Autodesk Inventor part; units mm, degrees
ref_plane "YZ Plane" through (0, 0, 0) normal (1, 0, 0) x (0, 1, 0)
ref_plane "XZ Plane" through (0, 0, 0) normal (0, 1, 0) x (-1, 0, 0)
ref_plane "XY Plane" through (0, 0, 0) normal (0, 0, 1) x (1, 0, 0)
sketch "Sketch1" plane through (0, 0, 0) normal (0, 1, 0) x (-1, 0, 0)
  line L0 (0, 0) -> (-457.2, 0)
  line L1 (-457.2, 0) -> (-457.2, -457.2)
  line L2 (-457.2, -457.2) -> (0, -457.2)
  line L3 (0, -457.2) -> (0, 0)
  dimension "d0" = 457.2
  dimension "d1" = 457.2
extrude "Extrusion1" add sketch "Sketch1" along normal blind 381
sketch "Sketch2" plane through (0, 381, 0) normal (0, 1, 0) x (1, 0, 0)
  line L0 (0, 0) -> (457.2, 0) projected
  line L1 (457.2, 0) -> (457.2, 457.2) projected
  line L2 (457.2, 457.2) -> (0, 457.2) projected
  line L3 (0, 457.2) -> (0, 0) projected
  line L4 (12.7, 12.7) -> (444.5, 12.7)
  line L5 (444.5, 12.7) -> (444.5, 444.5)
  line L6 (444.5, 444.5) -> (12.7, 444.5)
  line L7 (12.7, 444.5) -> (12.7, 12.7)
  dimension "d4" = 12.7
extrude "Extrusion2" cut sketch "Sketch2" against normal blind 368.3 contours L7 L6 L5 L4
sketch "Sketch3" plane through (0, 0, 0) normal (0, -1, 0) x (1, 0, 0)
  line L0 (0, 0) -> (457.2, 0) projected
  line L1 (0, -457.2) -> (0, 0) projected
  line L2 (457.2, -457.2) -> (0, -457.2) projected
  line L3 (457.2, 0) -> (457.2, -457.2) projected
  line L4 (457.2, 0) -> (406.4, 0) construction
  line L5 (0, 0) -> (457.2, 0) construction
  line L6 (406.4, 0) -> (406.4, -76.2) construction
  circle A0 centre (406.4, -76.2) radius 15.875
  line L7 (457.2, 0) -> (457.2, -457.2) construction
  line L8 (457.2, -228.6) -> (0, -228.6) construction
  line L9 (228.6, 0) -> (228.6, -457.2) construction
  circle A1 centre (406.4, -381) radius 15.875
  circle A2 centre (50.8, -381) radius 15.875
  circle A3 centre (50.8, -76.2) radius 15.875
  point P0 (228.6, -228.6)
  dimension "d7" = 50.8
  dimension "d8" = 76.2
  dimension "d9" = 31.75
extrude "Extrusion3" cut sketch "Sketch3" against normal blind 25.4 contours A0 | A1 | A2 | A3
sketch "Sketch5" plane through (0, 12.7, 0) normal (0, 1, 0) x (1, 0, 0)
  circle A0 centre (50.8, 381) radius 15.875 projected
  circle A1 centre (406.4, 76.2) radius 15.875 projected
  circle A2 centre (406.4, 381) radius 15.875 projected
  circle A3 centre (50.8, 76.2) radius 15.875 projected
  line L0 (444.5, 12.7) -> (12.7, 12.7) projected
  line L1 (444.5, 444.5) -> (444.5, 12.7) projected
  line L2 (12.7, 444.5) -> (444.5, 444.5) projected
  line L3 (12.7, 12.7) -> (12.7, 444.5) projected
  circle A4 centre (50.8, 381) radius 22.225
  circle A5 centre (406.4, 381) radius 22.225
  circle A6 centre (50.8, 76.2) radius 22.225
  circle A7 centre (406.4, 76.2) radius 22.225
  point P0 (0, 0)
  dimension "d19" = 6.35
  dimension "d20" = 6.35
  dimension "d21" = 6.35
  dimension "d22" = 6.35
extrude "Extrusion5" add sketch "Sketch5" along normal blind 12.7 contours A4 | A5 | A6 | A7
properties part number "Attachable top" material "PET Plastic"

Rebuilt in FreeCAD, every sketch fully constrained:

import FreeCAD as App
import Part
import Sketcher

V = App.Vector
Q = App.Units.Quantity

doc = App.newDocument("Part")
params = doc.addObject("Spreadsheet::Sheet", "Params")
for row, (alias, value) in enumerate([
    ("sketch1_width", "18 in"),
    ("pad1_length", "15 in"),
    ("sketch2_width", "17 in"),
    ("pocket1_length", "14.5 in"),
    ("sketch3_diameter", "1.25 in"),
    ("pocket2_length", "1 in"),
    ("sketch4_diameter", "1.75 in"),
    ("sketch4_diameter2", "1.25 in"),
    ("pad2_length", "0.5 in"),
], start=1):
    params.set(f"A{row}", alias)
    params.set(f"B{row}", "=" + value)
    params.setAlias(f"B{row}", alias)

body = doc.addObject("PartDesign::Body", "Body")

sketch1 = doc.addObject("Sketcher::SketchObject", "Sketch")
body.addObject(sketch1)
sketch1.AttachmentSupport = (doc.XZ_Plane, [""])
sketch1.MapMode = "FlatFace"
sketch1.addGeometry([
    Part.LineSegment(V(0, -457, 0), V(0, 0, 0)),
    Part.LineSegment(V(0, 0, 0), V(457, 0, 0)),
    Part.LineSegment(V(457, 0, 0), V(457, -457, 0)),
    Part.LineSegment(V(457, -457, 0), V(0, -457, 0)),
], False)
sketch1.addConstraint([
    Sketcher.Constraint("Coincident", 0, 2, 1, 1),
    Sketcher.Constraint("Coincident", 1, 2, 2, 1),
    Sketcher.Constraint("Coincident", 2, 2, 3, 1),
    Sketcher.Constraint("Coincident", 3, 2, 0, 1),
    Sketcher.Constraint("Vertical", 0),
    Sketcher.Constraint("Horizontal", 1),
    Sketcher.Constraint("Vertical", 2),
    Sketcher.Constraint("Horizontal", 3),
    Sketcher.Constraint("Coincident", 0, 2, -1, 1),
    Sketcher.Constraint("Equal", 3, 0),
    Sketcher.Constraint("DistanceX", 1, 1, 1, 2, Q("18 in")),
])
sketch1.setExpression("Constraints[10]", "Params.sketch1_width")
pad1 = doc.addObject("PartDesign::Pad", "Pad")
body.addObject(pad1)
pad1.Profile = sketch1
pad1.setExpression("Length", "Params.pad1_length")
pad1.Reversed = True

sketch2 = doc.addObject("Sketcher::SketchObject", "Sketch001")
body.addObject(sketch2)
sketch2.AttachmentSupport = (doc.XZ_Plane, [""])
sketch2.MapMode = "FlatFace"
sketch2.AttachmentOffset = App.Placement(V(0, 0, -15 * 25.4), App.Rotation())
sketch2.addGeometry([
    Part.LineSegment(V(13, -444, 0), V(13, -13, 0)),
    Part.LineSegment(V(13, -13, 0), V(444, -13, 0)),
    Part.LineSegment(V(444, -13, 0), V(444, -444, 0)),
    Part.LineSegment(V(444, -444, 0), V(13, -444, 0)),
], False)
sketch2.addConstraint([
    Sketcher.Constraint("Coincident", 0, 2, 1, 1),
    Sketcher.Constraint("Coincident", 1, 2, 2, 1),
    Sketcher.Constraint("Coincident", 2, 2, 3, 1),
    Sketcher.Constraint("Coincident", 3, 2, 0, 1),
    Sketcher.Constraint("Vertical", 0),
    Sketcher.Constraint("Horizontal", 1),
    Sketcher.Constraint("Vertical", 2),
    Sketcher.Constraint("Horizontal", 3),
    Sketcher.Constraint("Equal", 3, 0),
    Sketcher.Constraint("DistanceX", -1, 1, 0, 2, Q("0.5 in")),
    Sketcher.Constraint("DistanceY", 0, 2, -1, 1, Q("0.5 in")),
    Sketcher.Constraint("DistanceX", 1, 1, 1, 2, Q("17 in")),
])
sketch2.setExpression("Constraints[11]", "Params.sketch2_width")
pocket1 = doc.addObject("PartDesign::Pocket", "Pocket")
body.addObject(pocket1)
pocket1.Profile = sketch2
pocket1.setExpression("Length", "Params.pocket1_length")
pocket1.Reversed = True

sketch3 = doc.addObject("Sketcher::SketchObject", "Sketch002")
body.addObject(sketch3)
sketch3.AttachmentSupport = (doc.XZ_Plane, [""])
sketch3.MapMode = "FlatFace"
sketch3.addGeometry([
    Part.Circle(V(406, -76, 0), V(0, 0, 1), 16),
    Part.Circle(V(406, -381, 0), V(0, 0, 1), 16),
    Part.Circle(V(51, -381, 0), V(0, 0, 1), 16),
    Part.Circle(V(51, -76, 0), V(0, 0, 1), 16),
], False)
sketch3.addConstraint([
    Sketcher.Constraint("Equal", 0, 1),
    Sketcher.Constraint("Equal", 1, 2),
    Sketcher.Constraint("Equal", 2, 3),
    Sketcher.Constraint("Horizontal", 1, 3, 2, 3),
    Sketcher.Constraint("Horizontal", 0, 3, 3, 3),
    Sketcher.Constraint("Vertical", 0, 3, 1, 3),
    Sketcher.Constraint("Vertical", 2, 3, 3, 3),
    Sketcher.Constraint("Diameter", 0, Q("1.25 in")),
    Sketcher.Constraint("DistanceY", 0, 3, -1, 1, Q("3 in")),
    Sketcher.Constraint("DistanceX", -1, 1, 2, 3, Q("2 in")),
    Sketcher.Constraint("DistanceX", -1, 1, 0, 3, Q("16 in")),
    Sketcher.Constraint("DistanceY", 1, 3, -1, 1, Q("15 in")),
])
sketch3.setExpression("Constraints[7]", "Params.sketch3_diameter")
pocket2 = doc.addObject("PartDesign::Pocket", "Pocket001")
body.addObject(pocket2)
pocket2.Profile = sketch3
pocket2.setExpression("Length", "Params.pocket2_length")

sketch4 = doc.addObject("Sketcher::SketchObject", "Sketch003")
body.addObject(sketch4)
sketch4.AttachmentSupport = (doc.XZ_Plane, [""])
sketch4.MapMode = "FlatFace"
sketch4.AttachmentOffset = App.Placement(V(0, 0, -0.5 * 25.4), App.Rotation())
sketch4.addGeometry([
    Part.Circle(V(51, -381, 0), V(0, 0, 1), 22),
    Part.Circle(V(51, -381, 0), V(0, 0, 1), 16),
    Part.Circle(V(406, -381, 0), V(0, 0, 1), 22),
    Part.Circle(V(406, -381, 0), V(0, 0, 1), 16),
    Part.Circle(V(51, -76, 0), V(0, 0, 1), 22),
    Part.Circle(V(51, -76, 0), V(0, 0, 1), 16),
    Part.Circle(V(406, -76, 0), V(0, 0, 1), 22),
    Part.Circle(V(406, -76, 0), V(0, 0, 1), 16),
], False)
sketch4.addConstraint([
    Sketcher.Constraint("Coincident", 1, 3, 0, 3),
    Sketcher.Constraint("Coincident", 3, 3, 2, 3),
    Sketcher.Constraint("Coincident", 5, 3, 4, 3),
    Sketcher.Constraint("Coincident", 7, 3, 6, 3),
    Sketcher.Constraint("Equal", 0, 2),
    Sketcher.Constraint("Equal", 1, 3),
    Sketcher.Constraint("Equal", 2, 4),
    Sketcher.Constraint("Equal", 3, 5),
    Sketcher.Constraint("Equal", 4, 6),
    Sketcher.Constraint("Equal", 5, 7),
    Sketcher.Constraint("Horizontal", 1, 3, 2, 3),
    Sketcher.Constraint("Horizontal", 5, 3, 6, 3),
    Sketcher.Constraint("Vertical", 1, 3, 4, 3),
    Sketcher.Constraint("Vertical", 3, 3, 6, 3),
    Sketcher.Constraint("Diameter", 0, Q("1.75 in")),
    Sketcher.Constraint("Diameter", 1, Q("1.25 in")),
    Sketcher.Constraint("DistanceX", -1, 1, 0, 3, Q("2 in")),
    Sketcher.Constraint("DistanceY", 0, 3, -1, 1, Q("15 in")),
    Sketcher.Constraint("DistanceX", -1, 1, 2, 3, Q("16 in")),
    Sketcher.Constraint("DistanceY", 4, 3, -1, 1, Q("3 in")),
])
sketch4.setExpression("Constraints[14]", "Params.sketch4_diameter")
sketch4.setExpression("Constraints[15]", "Params.sketch4_diameter2")
pad2 = doc.addObject("PartDesign::Pad", "Pad001")
body.addObject(pad2)
pad2.Profile = sketch4
pad2.setExpression("Length", "Params.pad2_length")
pad2.Reversed = True

doc.recompute()
